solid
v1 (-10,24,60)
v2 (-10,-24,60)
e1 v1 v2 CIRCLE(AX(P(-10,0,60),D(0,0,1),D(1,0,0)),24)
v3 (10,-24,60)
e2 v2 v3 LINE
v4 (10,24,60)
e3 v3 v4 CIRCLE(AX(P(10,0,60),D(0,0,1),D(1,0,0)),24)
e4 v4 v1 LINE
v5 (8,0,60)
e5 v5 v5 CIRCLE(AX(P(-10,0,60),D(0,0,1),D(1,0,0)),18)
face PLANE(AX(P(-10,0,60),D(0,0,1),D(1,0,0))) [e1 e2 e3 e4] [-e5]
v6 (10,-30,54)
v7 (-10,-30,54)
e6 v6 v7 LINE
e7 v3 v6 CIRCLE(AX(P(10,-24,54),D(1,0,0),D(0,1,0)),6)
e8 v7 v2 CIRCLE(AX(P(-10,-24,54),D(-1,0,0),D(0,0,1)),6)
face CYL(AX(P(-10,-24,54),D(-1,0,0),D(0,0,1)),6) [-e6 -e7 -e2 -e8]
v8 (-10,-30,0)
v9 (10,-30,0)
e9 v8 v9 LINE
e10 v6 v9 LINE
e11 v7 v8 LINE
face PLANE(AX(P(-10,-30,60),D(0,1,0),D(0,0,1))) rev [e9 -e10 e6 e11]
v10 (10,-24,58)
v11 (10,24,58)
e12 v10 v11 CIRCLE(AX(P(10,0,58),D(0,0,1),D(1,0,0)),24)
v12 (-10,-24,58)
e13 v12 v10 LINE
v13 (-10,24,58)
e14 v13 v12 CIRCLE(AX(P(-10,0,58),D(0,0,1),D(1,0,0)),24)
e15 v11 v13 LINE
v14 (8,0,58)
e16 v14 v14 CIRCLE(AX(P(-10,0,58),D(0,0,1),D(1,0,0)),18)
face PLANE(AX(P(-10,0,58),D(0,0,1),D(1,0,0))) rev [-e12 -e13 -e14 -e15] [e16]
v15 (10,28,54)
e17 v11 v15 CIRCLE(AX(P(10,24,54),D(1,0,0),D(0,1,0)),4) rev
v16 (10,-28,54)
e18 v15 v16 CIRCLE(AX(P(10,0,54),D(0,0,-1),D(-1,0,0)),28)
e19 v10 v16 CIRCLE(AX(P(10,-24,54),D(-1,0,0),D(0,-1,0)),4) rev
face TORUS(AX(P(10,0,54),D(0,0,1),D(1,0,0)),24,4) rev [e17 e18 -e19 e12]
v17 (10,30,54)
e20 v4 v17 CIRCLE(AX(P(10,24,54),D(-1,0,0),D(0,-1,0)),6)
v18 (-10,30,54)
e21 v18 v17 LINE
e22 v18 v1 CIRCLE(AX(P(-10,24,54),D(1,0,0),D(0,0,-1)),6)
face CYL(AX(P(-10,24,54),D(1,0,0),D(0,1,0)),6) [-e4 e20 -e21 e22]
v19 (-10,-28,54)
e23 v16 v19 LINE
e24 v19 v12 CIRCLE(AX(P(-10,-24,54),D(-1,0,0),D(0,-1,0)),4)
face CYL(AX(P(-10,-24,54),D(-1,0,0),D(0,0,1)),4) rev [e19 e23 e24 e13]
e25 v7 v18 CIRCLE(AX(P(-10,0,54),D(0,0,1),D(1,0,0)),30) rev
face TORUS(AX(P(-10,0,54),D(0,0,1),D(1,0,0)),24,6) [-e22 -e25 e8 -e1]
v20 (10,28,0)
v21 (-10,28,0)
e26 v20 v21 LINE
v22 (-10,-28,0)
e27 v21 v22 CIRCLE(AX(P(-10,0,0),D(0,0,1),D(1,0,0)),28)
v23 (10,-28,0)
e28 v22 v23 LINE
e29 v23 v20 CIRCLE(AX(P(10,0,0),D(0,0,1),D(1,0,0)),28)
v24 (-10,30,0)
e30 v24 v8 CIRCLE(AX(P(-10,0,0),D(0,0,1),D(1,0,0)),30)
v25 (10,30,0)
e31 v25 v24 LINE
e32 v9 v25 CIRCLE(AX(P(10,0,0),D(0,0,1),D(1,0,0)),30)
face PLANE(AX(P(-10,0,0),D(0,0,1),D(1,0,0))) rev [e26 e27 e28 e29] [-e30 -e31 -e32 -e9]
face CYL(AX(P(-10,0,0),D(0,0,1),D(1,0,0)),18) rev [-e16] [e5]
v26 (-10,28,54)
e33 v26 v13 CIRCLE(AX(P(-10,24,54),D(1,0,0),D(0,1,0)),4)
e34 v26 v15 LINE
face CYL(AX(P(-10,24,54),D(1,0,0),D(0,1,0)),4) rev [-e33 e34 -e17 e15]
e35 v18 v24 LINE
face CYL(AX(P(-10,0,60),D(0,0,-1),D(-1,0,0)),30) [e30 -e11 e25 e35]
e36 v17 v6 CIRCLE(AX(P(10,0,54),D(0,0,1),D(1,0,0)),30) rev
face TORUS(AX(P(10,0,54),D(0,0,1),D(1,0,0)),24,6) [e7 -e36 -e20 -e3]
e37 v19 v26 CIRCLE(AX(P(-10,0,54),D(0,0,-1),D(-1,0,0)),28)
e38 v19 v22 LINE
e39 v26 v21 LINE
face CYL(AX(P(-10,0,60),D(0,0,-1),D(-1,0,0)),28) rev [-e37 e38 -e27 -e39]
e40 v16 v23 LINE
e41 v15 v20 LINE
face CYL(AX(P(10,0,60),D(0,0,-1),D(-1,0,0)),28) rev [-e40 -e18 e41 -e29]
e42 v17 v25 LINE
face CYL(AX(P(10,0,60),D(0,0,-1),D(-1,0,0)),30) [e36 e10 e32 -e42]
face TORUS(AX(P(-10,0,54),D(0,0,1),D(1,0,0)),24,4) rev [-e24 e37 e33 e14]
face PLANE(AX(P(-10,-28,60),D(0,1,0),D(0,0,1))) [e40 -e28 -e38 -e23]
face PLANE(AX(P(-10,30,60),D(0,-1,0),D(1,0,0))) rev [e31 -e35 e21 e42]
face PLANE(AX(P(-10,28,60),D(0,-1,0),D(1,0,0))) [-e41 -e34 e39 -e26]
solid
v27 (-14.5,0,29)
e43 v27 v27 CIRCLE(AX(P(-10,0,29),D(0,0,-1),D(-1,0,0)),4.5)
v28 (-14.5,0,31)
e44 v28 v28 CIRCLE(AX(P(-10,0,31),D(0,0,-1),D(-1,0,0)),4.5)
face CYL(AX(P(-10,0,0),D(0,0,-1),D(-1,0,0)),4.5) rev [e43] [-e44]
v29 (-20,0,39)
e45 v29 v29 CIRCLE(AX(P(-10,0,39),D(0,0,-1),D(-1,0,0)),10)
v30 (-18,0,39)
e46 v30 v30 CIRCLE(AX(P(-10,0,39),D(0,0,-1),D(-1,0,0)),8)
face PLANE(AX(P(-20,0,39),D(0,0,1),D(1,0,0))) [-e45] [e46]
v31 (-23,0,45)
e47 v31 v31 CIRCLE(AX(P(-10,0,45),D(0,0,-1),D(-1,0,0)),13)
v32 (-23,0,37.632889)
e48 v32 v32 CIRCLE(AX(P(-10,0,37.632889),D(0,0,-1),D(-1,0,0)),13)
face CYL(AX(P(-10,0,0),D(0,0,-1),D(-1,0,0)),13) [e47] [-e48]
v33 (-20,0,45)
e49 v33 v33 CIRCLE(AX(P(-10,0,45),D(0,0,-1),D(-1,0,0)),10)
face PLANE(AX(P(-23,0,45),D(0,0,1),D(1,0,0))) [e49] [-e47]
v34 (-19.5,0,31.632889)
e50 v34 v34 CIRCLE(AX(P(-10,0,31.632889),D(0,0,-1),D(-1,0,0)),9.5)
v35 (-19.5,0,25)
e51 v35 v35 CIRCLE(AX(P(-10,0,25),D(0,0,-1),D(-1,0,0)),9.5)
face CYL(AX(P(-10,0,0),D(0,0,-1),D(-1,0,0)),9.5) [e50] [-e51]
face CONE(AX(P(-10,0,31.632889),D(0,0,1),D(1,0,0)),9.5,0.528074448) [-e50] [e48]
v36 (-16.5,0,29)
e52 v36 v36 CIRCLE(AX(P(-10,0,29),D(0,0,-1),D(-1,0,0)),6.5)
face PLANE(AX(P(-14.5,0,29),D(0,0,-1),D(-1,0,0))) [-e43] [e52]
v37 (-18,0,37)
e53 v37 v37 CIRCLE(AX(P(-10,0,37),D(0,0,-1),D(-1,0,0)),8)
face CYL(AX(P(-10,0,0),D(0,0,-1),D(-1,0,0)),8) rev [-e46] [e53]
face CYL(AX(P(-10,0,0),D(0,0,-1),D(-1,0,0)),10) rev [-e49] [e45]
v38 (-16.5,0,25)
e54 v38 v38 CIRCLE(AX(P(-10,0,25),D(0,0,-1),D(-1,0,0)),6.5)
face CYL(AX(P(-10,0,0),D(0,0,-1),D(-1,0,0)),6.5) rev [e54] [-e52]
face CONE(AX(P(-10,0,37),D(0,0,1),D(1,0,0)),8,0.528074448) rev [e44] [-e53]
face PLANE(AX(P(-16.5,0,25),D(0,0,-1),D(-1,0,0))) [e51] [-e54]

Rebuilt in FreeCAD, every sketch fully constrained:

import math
import FreeCAD as App
import Part
import Sketcher

V = App.Vector
Q = App.Units.Quantity


def edges_at(feature, points):
    """Names of the edges that pass closest to the given points."""
    edges = feature.Shape.Edges
    near = lambda p: min(range(len(edges)), key=lambda i: edges[i].distToShape(Part.Vertex(*p))[0])
    return sorted({f"Edge{near(p) + 1}" for p in points})


def faces_at(feature, points):
    """Names of the faces that lie closest to the given points."""
    faces = feature.Shape.Faces
    near = lambda p: min(range(len(faces)), key=lambda i: faces[i].distToShape(Part.Vertex(*p))[0])
    return sorted({f"Face{near(p) + 1}" for p in points})

doc = App.newDocument("Part")
body = doc.addObject("PartDesign::Body", "Body")

sketch1 = body.newObject("Sketcher::SketchObject", "Sketch")
sketch1.AttachmentSupport = (doc.getObject("XY_Plane"), [""])
sketch1.MapMode = "FlatFace"
sketch1.addGeometry([
    Part.LineSegment(V(10, 30, 0), V(-10, 30, 0)),
    Part.ArcOfCircle(Part.Circle(V(-10, 0, 0), V(0, 0, 1), 30), math.radians(90), math.radians(270)),
    Part.LineSegment(V(-10, -30, 0), V(10, -30, 0)),
    Part.ArcOfCircle(Part.Circle(V(10, 0, 0), V(0, 0, 1), 30), math.radians(-90), math.radians(90)),
], False)
sketch1.addConstraint([
    Sketcher.Constraint("Tangent", 0, 2, 1, 1),
    Sketcher.Constraint("Tangent", 1, 2, 2, 1),
    Sketcher.Constraint("Tangent", 2, 2, 3, 1),
    Sketcher.Constraint("Tangent", 3, 2, 0, 1),
    Sketcher.Constraint("Horizontal", 0),
    Sketcher.Constraint("Horizontal", 2),
    Sketcher.Constraint("Symmetric", 1, 3, 3, 3, -1, 1),
    Sketcher.Constraint("Radius", 1, Q("30 mm")),
    Sketcher.Constraint("DistanceX", 0, 2, 0, 1, Q("20 mm")),
])
pad1 = body.newObject("PartDesign::Pad", "Pad")
pad1.Profile = sketch1
pad1.Length = 60
doc.recompute()

fillet = body.newObject("PartDesign::Fillet", "Fillet")
fillet.Base = (pad1, edges_at(pad1, [
    (40, 0, 60),
    (0, 30, 60),
    (-40, 0, 60),
    (0, -30, 60),
]))
fillet.Radius = 6
doc.recompute()

thickness = body.newObject("PartDesign::Thickness", "Thickness")
thickness.Base = (fillet, faces_at(fillet, [(0, 0, 0)]))
thickness.Value = 2
thickness.Reversed = True
thickness.Join = "Intersection"

sketch2 = body.newObject("Sketcher::SketchObject", "Sketch001")
sketch2.AttachmentSupport = (doc.getObject("XY_Plane"), [""])
sketch2.MapMode = "FlatFace"
sketch2.AttachmentOffset = App.Placement(V(0, 0, 60), App.Rotation())
sketch2.addGeometry(Part.Circle(V(-10, 0, 0), V(0, 0, 1), 18), False)
sketch2.addConstraint([
    Sketcher.Constraint("PointOnObject", 0, 3, -1),
    Sketcher.Constraint("Diameter", 0, Q("36 mm")),
    Sketcher.Constraint("DistanceX", 0, 3, -1, 1, Q("10 mm")),
])
pocket1 = body.newObject("PartDesign::Pocket", "Pocket")
pocket1.Profile = sketch2
pocket1.Type = "ThroughAll"
body2 = doc.addObject("PartDesign::Body", "Body001")

sketch3 = body2.newObject("Sketcher::SketchObject", "Sketch002")
sketch3.AttachmentSupport = (doc.getObject("XZ_Plane001"), [""])
sketch3.MapMode = "FlatFace"
sketch3.addGeometry([
    Part.LineSegment(V(-20, 45, 0), V(-20, 39, 0)),
    Part.LineSegment(V(-20, 39, 0), V(-18, 39, 0)),
    Part.LineSegment(V(-18, 39, 0), V(-18, 37, 0)),
    Part.LineSegment(V(-18, 37, 0), V(-14.5, 31, 0)),
    Part.LineSegment(V(-14.5, 31, 0), V(-14.5, 29, 0)),
    Part.LineSegment(V(-14.5, 29, 0), V(-16.5, 29, 0)),
    Part.LineSegment(V(-16.5, 29, 0), V(-16.5, 25, 0)),
    Part.LineSegment(V(-16.5, 25, 0), V(-19.5, 25, 0)),
    Part.LineSegment(V(-19.5, 25, 0), V(-19.5, 31.6, 0)),
    Part.LineSegment(V(-19.5, 31.6, 0), V(-23, 37.6, 0)),
    Part.LineSegment(V(-23, 37.6, 0), V(-23, 45, 0)),
    Part.LineSegment(V(-23, 45, 0), V(-20, 45, 0)),
], False)
sketch3.addGeometry(Part.LineSegment(V(-10, 25, 0), V(-10, 45, 0)), True)
sketch3.addConstraint([
    Sketcher.Constraint("Coincident", 0, 2, 1, 1),
    Sketcher.Constraint("Coincident", 1, 2, 2, 1),
    Sketcher.Constraint("Coincident", 2, 2, 3, 1),
    Sketcher.Constraint("Coincident", 3, 2, 4, 1),
    Sketcher.Constraint("Coincident", 4, 2, 5, 1),
    Sketcher.Constraint("Coincident", 5, 2, 6, 1),
    Sketcher.Constraint("Coincident", 6, 2, 7, 1),
    Sketcher.Constraint("Coincident", 7, 2, 8, 1),
    Sketcher.Constraint("Coincident", 8, 2, 9, 1),
    Sketcher.Constraint("Coincident", 9, 2, 10, 1),
    Sketcher.Constraint("Coincident", 10, 2, 11, 1),
    Sketcher.Constraint("Coincident", 11, 2, 0, 1),
    Sketcher.Constraint("Vertical", 0),
    Sketcher.Constraint("Horizontal", 1),
    Sketcher.Constraint("Vertical", 2),
    Sketcher.Constraint("Vertical", 4),
    Sketcher.Constraint("Horizontal", 5),
    Sketcher.Constraint("Vertical", 6),
    Sketcher.Constraint("Horizontal", 7),
    Sketcher.Constraint("Vertical", 8),
    Sketcher.Constraint("Vertical", 10),
    Sketcher.Constraint("Horizontal", 11),
    Sketcher.Constraint("Vertical", 12),
    Sketcher.Constraint("Parallel", 3, 9),
    Sketcher.Constraint("Horizontal", 7, 2, 12, 1),
    Sketcher.Constraint("Horizontal", 11, 2, 12, 2),
    Sketcher.Constraint("Equal", 1, 5),
    Sketcher.Constraint("Equal", 7, 11),
    Sketcher.Constraint("Equal", 5, 2),
    Sketcher.Constraint("Equal", 2, 4),
    Sketcher.Constraint("DistanceX", 1, 1, 1, 2, Q("2 mm")),
    Sketcher.Constraint("DistanceX", 7, 2, 7, 1, Q("3 mm")),
    Sketcher.Constraint("DistanceY", 0, 2, 0, 1, Q("6 mm")),
    Sketcher.Constraint("DistanceY", 6, 2, 6, 1, Q("4 mm")),
    Sketcher.Constraint("DistanceY", 12, 1, 12, 2, Q("20 mm")),
    Sketcher.Constraint("DistanceX", 0, 2, -1, 1, Q("20 mm")),
    Sketcher.Constraint("DistanceY", -1, 1, 0, 2, Q("39 mm")),
    Sketcher.Constraint("DistanceX", 12, 1, -1, 1, Q("10 mm")),
    Sketcher.Constraint("DistanceX", 3, 2, -1, 1, Q("14.5 mm")),
    Sketcher.Constraint("DistanceY", 8, 1, 8, 2, Q("6.632889 mm")),
])
revolution = body2.newObject("PartDesign::Revolution", "Revolution")
revolution.Profile = sketch3
revolution.ReferenceAxis = (sketch3, ["Axis0"])
revolution.Angle = 360

doc.recompute()
